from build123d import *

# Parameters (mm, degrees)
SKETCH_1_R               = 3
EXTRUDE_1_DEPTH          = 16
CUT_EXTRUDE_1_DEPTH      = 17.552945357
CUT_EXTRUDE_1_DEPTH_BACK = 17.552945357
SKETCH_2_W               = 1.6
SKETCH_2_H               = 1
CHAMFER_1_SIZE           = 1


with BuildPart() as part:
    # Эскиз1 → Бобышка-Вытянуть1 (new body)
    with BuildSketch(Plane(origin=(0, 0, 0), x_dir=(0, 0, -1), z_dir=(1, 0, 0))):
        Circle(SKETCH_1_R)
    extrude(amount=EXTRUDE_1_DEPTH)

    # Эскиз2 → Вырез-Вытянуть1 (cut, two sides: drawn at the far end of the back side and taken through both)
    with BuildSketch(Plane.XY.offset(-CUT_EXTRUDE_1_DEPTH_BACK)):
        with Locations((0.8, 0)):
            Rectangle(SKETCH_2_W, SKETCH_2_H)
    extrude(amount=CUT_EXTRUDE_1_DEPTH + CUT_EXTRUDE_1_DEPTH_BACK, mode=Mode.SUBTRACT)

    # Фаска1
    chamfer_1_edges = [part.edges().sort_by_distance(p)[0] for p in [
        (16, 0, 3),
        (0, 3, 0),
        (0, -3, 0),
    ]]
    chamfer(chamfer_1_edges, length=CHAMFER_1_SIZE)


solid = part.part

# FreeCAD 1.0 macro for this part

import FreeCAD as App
import Part
import Sketcher
from FreeCAD import Vector
Q = App.Units.Quantity


def edges_at(feature, points):
    """Names of the edges that pass closest to the given points."""
    edges = feature.Shape.Edges
    near = lambda p: min(range(len(edges)), key=lambda i: edges[i].distToShape(Part.Vertex(*p))[0])
    return sorted({f"Edge{near(p) + 1}" for p in points})

doc = App.newDocument("Part")
body = doc.addObject("PartDesign::Body", "Body")

# Sketch on YZ plane
sketch1 = body.newObject("Sketcher::SketchObject", "Sketch")
sketch1.AttachmentSupport = (doc.getObject("YZ_Plane"), [""])
sketch1.MapMode = "FlatFace"
sketch1.addGeometry(Part.Circle(Vector(0, 0, 0), Vector(0, 0, 1), 3), False)
sketch1.addConstraint([
    Sketcher.Constraint("Coincident", 0, 3, -1, 1),
    Sketcher.Constraint("Diameter", 0, Q("6 mm")),
])
pad1 = body.newObject("PartDesign::Pad", "Pad")
pad1.Profile = sketch1
pad1.Length = 16

# Sketch on XY plane
sketch2 = body.newObject("Sketcher::SketchObject", "Sketch001")
sketch2.AttachmentSupport = (doc.getObject("XY_Plane"), [""])
sketch2.MapMode = "FlatFace"
sketch2.addGeometry([
    Part.LineSegment(Vector(0, 0.5, 0), Vector(0, -0.5, 0)),
    Part.LineSegment(Vector(0, -0.5, 0), Vector(1.6, -0.5, 0)),
    Part.LineSegment(Vector(1.6, -0.5, 0), Vector(1.6, 0.5, 0)),
    Part.LineSegment(Vector(1.6, 0.5, 0), Vector(0, 0.5, 0)),
], False)
sketch2.addConstraint([
    Sketcher.Constraint("Coincident", 0, 2, 1, 1),
    Sketcher.Constraint("Coincident", 1, 2, 2, 1),
    Sketcher.Constraint("Coincident", 2, 2, 3, 1),
    Sketcher.Constraint("Coincident", 3, 2, 0, 1),
    Sketcher.Constraint("Vertical", 0),
    Sketcher.Constraint("Horizontal", 1),
    Sketcher.Constraint("Vertical", 2),
    Sketcher.Constraint("Horizontal", 3),
    Sketcher.Constraint("Symmetric", 0, 2, 3, 2, -1, 1),
    Sketcher.Constraint("DistanceY", 0, 2, 0, 1, Q("1 mm")),
    Sketcher.Constraint("DistanceX", 1, 1, 1, 2, Q("1.6 mm")),
])
pocket1 = body.newObject("PartDesign::Pocket", "Pocket")
pocket1.Profile = sketch2
pocket1.Type = "ThroughAll"
pocket1.Midplane = True
doc.recompute()

chamfer = body.newObject("PartDesign::Chamfer", "Chamfer")
chamfer.Base = (pocket1, edges_at(pocket1, [(16, 0, 3), (0, 3, 0), (0, -3, 0)]))
chamfer.Size = 1

doc.recompute()
